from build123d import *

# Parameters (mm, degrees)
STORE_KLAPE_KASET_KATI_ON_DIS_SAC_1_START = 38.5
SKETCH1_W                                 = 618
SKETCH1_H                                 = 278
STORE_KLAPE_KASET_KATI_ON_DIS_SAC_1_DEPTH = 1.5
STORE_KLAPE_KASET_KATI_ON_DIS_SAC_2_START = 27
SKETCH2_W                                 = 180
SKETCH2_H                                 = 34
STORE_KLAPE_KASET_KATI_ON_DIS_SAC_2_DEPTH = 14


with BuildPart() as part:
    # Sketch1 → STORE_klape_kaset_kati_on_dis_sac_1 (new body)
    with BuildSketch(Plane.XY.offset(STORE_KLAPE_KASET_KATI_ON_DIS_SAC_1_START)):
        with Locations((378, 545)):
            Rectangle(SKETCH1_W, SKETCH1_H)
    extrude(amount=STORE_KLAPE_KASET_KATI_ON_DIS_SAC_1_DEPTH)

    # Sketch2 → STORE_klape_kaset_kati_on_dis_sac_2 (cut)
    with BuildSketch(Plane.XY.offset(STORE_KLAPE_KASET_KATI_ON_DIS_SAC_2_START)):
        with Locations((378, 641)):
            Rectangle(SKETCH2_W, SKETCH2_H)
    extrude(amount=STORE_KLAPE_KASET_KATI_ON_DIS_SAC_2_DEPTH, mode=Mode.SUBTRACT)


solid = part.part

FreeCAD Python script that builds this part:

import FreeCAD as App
import Part
import Sketcher
from FreeCAD import Vector


def add_polygon(sketch, points):
    """Adds a closed chain of lines whose ends are joined by coincident constraints."""
    first, n = sketch.GeometryCount, len(points)
    for a, b in zip(points, points[1:] + points[:1]):
        sketch.addGeometry(Part.LineSegment(App.Vector(*a, 0), App.Vector(*b, 0)), False)
    for i in range(n):
        sketch.addConstraint(Sketcher.Constraint("Coincident", first + i, 2, first + (i + 1) % n, 1))

doc = App.newDocument("Part")
params = doc.addObject("Spreadsheet::Sheet", "Params")
for row, (alias, value) in enumerate([
    ("sketch1_width", "618 mm"),
    ("sketch1_height", "278 mm"),
    ("pad1_length", "1.5 mm"),
    ("sketch2_width", "180 mm"),
    ("sketch2_height", "34 mm"),
    ("pocket1_length", "14 mm"),
], start=1):
    params.set(f"A{row}", alias)
    params.set(f"B{row}", "=" + value)
    params.setAlias(f"B{row}", alias)

body = doc.addObject("PartDesign::Body", "Body")

# Sketch on XY plane
sketch1 = body.newObject("Sketcher::SketchObject", "Sketch")
sketch1.AttachmentSupport = (doc.getObject("XY_Plane"), [""])
sketch1.MapMode = "FlatFace"
sketch1.AttachmentOffset = App.Placement(Vector(0, 0, 38.5), App.Rotation())
add_polygon(sketch1, [(69, 684), (69, 406), (687, 406), (687, 684)])  # lines 0-3
sketch1.addConstraint(Sketcher.Constraint("Vertical", 0))
sketch1.addConstraint(Sketcher.Constraint("Horizontal", 1))
sketch1.addConstraint(Sketcher.Constraint("Vertical", 2))
sketch1.addConstraint(Sketcher.Constraint("Horizontal", 3))
sketch1.addConstraint(Sketcher.Constraint("DistanceX", 1, 1, 1, 2, 618.0))
sketch1.addConstraint(Sketcher.Constraint("DistanceY", 0, 2, 0, 1, 278.0))
sketch1.addConstraint(Sketcher.Constraint("DistanceX", -1, 1, 0, 2, 69.0))
sketch1.addConstraint(Sketcher.Constraint("DistanceY", -1, 1, 0, 2, 406.0))
sketch1.setExpression("Constraints[8]", "Params.sketch1_width")
sketch1.setExpression("Constraints[9]", "Params.sketch1_height")
pad1 = body.newObject("PartDesign::Pad", "Pad")
pad1.Profile = sketch1
pad1.setExpression("Length", "Params.pad1_length")

# Sketch on XY plane
sketch2 = body.newObject("Sketcher::SketchObject", "Sketch001")
sketch2.AttachmentSupport = (doc.getObject("XY_Plane"), [""])
sketch2.MapMode = "FlatFace"
sketch2.AttachmentOffset = App.Placement(Vector(0, 0, 27), App.Rotation())
add_polygon(sketch2, [(288, 658), (288, 624), (468, 624), (468, 658)])  # lines 0-3
sketch2.addConstraint(Sketcher.Constraint("Vertical", 0))
sketch2.addConstraint(Sketcher.Constraint("Horizontal", 1))
sketch2.addConstraint(Sketcher.Constraint("Vertical", 2))
sketch2.addConstraint(Sketcher.Constraint("Horizontal", 3))
sketch2.addConstraint(Sketcher.Constraint("DistanceX", 1, 1, 1, 2, 180.0))
sketch2.addConstraint(Sketcher.Constraint("DistanceY", 0, 2, 0, 1, 34.0))
sketch2.addConstraint(Sketcher.Constraint("DistanceX", -1, 1, 0, 2, 288.0))
sketch2.addConstraint(Sketcher.Constraint("DistanceY", -1, 1, 0, 2, 624.0))
sketch2.setExpression("Constraints[8]", "Params.sketch2_width")
sketch2.setExpression("Constraints[9]", "Params.sketch2_height")
pocket1 = body.newObject("PartDesign::Pocket", "Pocket")
pocket1.Profile = sketch2
pocket1.setExpression("Length", "Params.pocket1_length")
pocket1.Reversed = True

doc.recompute()
